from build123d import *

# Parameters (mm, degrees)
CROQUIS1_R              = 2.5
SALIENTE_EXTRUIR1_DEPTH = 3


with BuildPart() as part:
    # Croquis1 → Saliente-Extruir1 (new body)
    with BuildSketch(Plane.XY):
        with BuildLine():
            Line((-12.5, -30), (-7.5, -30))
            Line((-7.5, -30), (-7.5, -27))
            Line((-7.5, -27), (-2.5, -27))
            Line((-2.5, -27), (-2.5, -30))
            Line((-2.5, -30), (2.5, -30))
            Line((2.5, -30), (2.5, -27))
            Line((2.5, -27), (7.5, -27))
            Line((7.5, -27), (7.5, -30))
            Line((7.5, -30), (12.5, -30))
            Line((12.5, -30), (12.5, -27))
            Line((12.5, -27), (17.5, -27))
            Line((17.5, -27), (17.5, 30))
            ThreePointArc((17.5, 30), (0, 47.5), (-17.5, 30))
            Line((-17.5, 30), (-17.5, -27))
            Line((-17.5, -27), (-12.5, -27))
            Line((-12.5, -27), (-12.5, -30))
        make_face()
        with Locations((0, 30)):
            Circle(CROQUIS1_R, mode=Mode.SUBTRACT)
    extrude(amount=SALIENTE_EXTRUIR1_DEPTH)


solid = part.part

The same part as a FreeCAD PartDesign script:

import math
import FreeCAD as App
import Part
import Sketcher

V = App.Vector

doc = App.newDocument("Part")
body = doc.addObject("PartDesign::Body", "Body")

sketch1 = body.newObject("Sketcher::SketchObject", "Sketch")
sketch1.AttachmentSupport = (doc.getObject("XY_Plane"), [""])
sketch1.MapMode = "FlatFace"
sketch1.addGeometry([
    Part.LineSegment(V(-12.5, -30, 0), V(-7.5, -30, 0)),
    Part.LineSegment(V(-7.5, -30, 0), V(-7.5, -27, 0)),
    Part.LineSegment(V(-7.5, -27, 0), V(-2.5, -27, 0)),
    Part.LineSegment(V(-2.5, -27, 0), V(-2.5, -30, 0)),
    Part.LineSegment(V(-2.5, -30, 0), V(2.5, -30, 0)),
    Part.LineSegment(V(2.5, -30, 0), V(2.5, -27, 0)),
    Part.LineSegment(V(2.5, -27, 0), V(7.5, -27, 0)),
    Part.LineSegment(V(7.5, -27, 0), V(7.5, -30, 0)),
    Part.LineSegment(V(7.5, -30, 0), V(12.5, -30, 0)),
    Part.LineSegment(V(12.5, -30, 0), V(12.5, -27, 0)),
    Part.LineSegment(V(12.5, -27, 0), V(17.5, -27, 0)),
    Part.LineSegment(V(17.5, -27, 0), V(17.5, 30, 0)),
    Part.ArcOfCircle(Part.Circle(V(0, 30, 0), V(0, 0, 1), 17.5), math.radians(0), math.radians(180)),
    Part.LineSegment(V(-17.5, 30, 0), V(-17.5, -27, 0)),
    Part.LineSegment(V(-17.5, -27, 0), V(-12.5, -27, 0)),
    Part.LineSegment(V(-12.5, -27, 0), V(-12.5, -30, 0)),
    Part.Circle(V(0, 30, 0), V(0, 0, 1), 2.5),
], False)
sketch1.addConstraint([
    Sketcher.Constraint("Coincident", 0, 2, 1, 1),
    Sketcher.Constraint("Coincident", 1, 2, 2, 1),
    Sketcher.Constraint("Coincident", 2, 2, 3, 1),
    Sketcher.Constraint("Coincident", 3, 2, 4, 1),
    Sketcher.Constraint("Coincident", 4, 2, 5, 1),
    Sketcher.Constraint("Coincident", 5, 2, 6, 1),
    Sketcher.Constraint("Coincident", 6, 2, 7, 1),
    Sketcher.Constraint("Coincident", 7, 2, 8, 1),
    Sketcher.Constraint("Coincident", 8, 2, 9, 1),
    Sketcher.Constraint("Coincident", 9, 2, 10, 1),
    Sketcher.Constraint("Coincident", 10, 2, 11, 1),
    Sketcher.Constraint("Tangent", 11, 2, 12, 1),
    Sketcher.Constraint("Tangent", 12, 2, 13, 1),
    Sketcher.Constraint("Coincident", 13, 2, 14, 1),
    Sketcher.Constraint("Coincident", 14, 2, 15, 1),
    Sketcher.Constraint("Coincident", 15, 2, 0, 1),
    Sketcher.Constraint("Horizontal", 0),
    Sketcher.Constraint("Vertical", 1),
    Sketcher.Constraint("Horizontal", 2),
    Sketcher.Constraint("Vertical", 3),
    Sketcher.Constraint("Horizontal", 4),
    Sketcher.Constraint("Vertical", 5),
    Sketcher.Constraint("Horizontal", 6),
    Sketcher.Constraint("Vertical", 7),
    Sketcher.Constraint("Horizontal", 8),
    Sketcher.Constraint("Vertical", 9),
    Sketcher.Constraint("Horizontal", 10),
    Sketcher.Constraint("Vertical", 11),
    Sketcher.Constraint("Vertical", 13),
    Sketcher.Constraint("Horizontal", 14),
    Sketcher.Constraint("Vertical", 15),
    Sketcher.Constraint("Coincident", 16, 3, 12, 3),
    Sketcher.Constraint("Symmetric", 2, 2, 5, 2, -2),
    Sketcher.Constraint("Symmetric", 0, 2, 7, 2, -2),
    Sketcher.Constraint("Symmetric", 10, 2, 13, 2, -2),
    Sketcher.Constraint("Horizontal", 0, 2, 3, 2),
    Sketcher.Constraint("Horizontal", 6, 2, 9, 2),
    Sketcher.Constraint("Equal", 0, 2),
    Sketcher.Constraint("Equal", 2, 4),
    Sketcher.Constraint("Equal", 6, 8),
    Sketcher.Constraint("Equal", 8, 10),
    Sketcher.Constraint("Diameter", 16, 5.0),
    Sketcher.Constraint("Radius", 12, 17.5),
    Sketcher.Constraint("DistanceY", 1, 1, 1, 2, 3.0),
    Sketcher.Constraint("DistanceY", 11, 1, 11, 2, 57.0),
    Sketcher.Constraint("DistanceY", -1, 1, 12, 3, 30.0),
])
pad1 = body.newObject("PartDesign::Pad", "Pad")
pad1.Profile = sketch1
pad1.Length = 3

doc.recompute()
